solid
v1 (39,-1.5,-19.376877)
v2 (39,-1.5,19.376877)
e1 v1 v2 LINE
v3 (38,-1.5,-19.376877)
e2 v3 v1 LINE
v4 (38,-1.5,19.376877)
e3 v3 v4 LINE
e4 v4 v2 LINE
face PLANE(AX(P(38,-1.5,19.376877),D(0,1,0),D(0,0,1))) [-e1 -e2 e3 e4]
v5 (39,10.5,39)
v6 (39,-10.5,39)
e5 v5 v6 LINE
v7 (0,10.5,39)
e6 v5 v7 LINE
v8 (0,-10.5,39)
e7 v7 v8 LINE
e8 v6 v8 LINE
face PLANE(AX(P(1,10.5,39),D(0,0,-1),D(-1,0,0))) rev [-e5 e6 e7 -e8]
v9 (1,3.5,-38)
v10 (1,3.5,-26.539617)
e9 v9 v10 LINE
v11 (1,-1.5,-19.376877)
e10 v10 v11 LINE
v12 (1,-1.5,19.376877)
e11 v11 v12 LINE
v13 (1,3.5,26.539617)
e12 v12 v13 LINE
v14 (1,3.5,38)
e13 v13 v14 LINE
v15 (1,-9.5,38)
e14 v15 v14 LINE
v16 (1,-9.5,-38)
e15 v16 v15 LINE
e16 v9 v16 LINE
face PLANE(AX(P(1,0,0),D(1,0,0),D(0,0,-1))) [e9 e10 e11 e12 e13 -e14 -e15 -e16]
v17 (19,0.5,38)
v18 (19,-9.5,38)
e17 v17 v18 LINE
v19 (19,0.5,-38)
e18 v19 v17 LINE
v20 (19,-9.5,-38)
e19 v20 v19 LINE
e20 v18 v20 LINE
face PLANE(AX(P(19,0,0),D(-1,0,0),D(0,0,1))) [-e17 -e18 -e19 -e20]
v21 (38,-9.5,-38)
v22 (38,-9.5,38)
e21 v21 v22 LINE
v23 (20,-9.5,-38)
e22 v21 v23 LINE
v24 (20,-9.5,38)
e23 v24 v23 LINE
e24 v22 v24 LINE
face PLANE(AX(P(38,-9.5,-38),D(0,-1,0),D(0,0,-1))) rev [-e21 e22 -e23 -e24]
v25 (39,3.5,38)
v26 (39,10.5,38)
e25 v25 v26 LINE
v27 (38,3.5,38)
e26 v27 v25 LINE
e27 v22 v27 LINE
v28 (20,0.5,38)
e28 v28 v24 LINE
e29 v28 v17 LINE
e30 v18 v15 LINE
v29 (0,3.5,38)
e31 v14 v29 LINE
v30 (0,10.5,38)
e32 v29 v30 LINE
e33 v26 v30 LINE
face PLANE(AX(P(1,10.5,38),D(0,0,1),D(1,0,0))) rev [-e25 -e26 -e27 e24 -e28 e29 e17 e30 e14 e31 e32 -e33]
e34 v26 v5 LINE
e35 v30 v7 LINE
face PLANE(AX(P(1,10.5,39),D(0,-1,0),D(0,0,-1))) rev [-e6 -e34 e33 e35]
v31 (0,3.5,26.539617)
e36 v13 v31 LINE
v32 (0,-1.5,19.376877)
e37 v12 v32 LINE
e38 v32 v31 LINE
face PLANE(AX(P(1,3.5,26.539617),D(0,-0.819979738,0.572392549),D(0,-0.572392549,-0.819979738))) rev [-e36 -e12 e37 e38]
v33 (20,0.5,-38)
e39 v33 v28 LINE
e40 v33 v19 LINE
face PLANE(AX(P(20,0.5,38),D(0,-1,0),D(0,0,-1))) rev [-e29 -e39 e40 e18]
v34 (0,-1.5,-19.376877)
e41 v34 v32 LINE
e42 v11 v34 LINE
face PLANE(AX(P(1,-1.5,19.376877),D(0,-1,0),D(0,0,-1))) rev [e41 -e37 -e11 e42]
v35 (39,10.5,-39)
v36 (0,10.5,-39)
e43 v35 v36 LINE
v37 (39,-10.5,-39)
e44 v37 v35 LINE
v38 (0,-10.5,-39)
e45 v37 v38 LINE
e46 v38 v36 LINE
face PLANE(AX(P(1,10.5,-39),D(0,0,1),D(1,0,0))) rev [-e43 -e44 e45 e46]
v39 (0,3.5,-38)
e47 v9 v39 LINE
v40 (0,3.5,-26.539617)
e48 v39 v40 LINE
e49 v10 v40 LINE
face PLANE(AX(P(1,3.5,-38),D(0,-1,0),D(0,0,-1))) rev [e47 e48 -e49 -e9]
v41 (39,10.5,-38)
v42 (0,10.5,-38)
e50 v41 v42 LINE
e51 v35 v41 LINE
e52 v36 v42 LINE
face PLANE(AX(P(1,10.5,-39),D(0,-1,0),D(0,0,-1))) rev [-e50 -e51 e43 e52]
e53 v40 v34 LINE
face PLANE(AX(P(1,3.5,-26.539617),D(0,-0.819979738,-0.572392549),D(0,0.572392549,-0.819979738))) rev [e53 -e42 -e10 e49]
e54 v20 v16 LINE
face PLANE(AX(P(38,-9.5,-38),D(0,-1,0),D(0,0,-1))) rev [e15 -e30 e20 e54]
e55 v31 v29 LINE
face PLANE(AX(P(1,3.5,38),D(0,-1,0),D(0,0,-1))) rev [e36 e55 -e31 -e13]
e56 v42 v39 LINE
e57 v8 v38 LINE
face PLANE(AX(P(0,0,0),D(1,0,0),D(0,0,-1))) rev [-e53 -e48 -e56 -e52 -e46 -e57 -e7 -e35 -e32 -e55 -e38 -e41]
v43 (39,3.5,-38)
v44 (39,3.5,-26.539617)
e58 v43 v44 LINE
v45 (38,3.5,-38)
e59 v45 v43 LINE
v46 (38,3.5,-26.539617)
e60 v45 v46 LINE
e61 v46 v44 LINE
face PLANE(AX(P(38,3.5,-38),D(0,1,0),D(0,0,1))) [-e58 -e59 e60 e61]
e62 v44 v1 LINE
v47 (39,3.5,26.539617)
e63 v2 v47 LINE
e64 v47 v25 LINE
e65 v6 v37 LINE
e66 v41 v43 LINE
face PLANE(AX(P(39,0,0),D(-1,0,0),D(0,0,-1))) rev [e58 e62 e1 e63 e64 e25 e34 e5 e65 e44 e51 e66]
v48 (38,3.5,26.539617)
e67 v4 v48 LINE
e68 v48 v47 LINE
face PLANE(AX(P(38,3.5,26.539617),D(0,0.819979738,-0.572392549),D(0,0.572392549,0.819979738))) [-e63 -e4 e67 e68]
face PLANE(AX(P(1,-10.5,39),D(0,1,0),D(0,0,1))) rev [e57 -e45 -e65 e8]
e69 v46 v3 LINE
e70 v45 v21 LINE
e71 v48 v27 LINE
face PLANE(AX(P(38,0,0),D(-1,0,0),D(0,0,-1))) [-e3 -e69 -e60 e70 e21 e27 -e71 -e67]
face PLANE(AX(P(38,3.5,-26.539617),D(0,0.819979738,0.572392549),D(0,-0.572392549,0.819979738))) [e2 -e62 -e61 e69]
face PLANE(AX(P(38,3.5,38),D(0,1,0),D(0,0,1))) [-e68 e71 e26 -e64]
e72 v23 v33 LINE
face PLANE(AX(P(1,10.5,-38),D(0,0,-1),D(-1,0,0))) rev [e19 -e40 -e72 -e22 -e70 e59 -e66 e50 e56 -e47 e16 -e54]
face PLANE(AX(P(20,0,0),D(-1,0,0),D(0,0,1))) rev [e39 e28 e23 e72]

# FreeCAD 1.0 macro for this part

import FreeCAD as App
import Part
import Sketcher

doc = App.newDocument("Part")
params = doc.addObject("Spreadsheet::Sheet", "Params")
for row, (alias, value) in enumerate([
    ("sketch1_width", "21 mm"),
    ("sketch1_width2", "7 mm"),
    ("sketch1_height", "1 mm"),
    ("sketch1_height2", "78 mm"),
    ("pad1_length", "1 mm"),
    ("sketch2_width", "20 mm"),
    ("sketch2_width2", "21 mm"),
    ("sketch2_height", "1 mm"),
    ("sketch2_height2", "78 mm"),
    ("pad2_length", "37 mm"),
    ("sketch3_width", "10 mm"),
    ("sketch3_height", "76 mm"),
    ("pad3_length", "1 mm"),
], start=1):
    params.set(f"A{row}", alias)
    params.set(f"B{row}", "=" + value)
    params.setAlias(f"B{row}", alias)

body = doc.addObject("PartDesign::Body", "Body")

# Sketch on YZ plane
sketch1 = body.newObject("Sketcher::SketchObject", "Sketch")
sketch1.AttachmentSupport = (doc.getObject("YZ_Plane"), [""])
sketch1.MapMode = "FlatFace"
sketch1.addGeometry([
    Part.LineSegment(App.Vector(10.5, 38, 0), App.Vector(10.5, 39, 0)),  # 0
    Part.LineSegment(App.Vector(10.5, 39, 0), App.Vector(-10.5, 39, 0)),  # 1
    Part.LineSegment(App.Vector(-10.5, 39, 0), App.Vector(-10.5, -39, 0)),  # 2
    Part.LineSegment(App.Vector(-10.5, -39, 0), App.Vector(10.5, -39, 0)),  # 3
    Part.LineSegment(App.Vector(10.5, -39, 0), App.Vector(10.5, -38, 0)),  # 4
    Part.LineSegment(App.Vector(10.5, -38, 0), App.Vector(3.5, -38, 0)),  # 5
    Part.LineSegment(App.Vector(3.5, -38, 0), App.Vector(3.5, -26.5, 0)),  # 6
    Part.LineSegment(App.Vector(3.5, -26.5, 0), App.Vector(-1.5, -19.4, 0)),  # 7
    Part.LineSegment(App.Vector(-1.5, -19.4, 0), App.Vector(-1.5, 19.4, 0)),  # 8
    Part.LineSegment(App.Vector(-1.5, 19.4, 0), App.Vector(3.5, 26.5, 0)),  # 9
    Part.LineSegment(App.Vector(3.5, 26.5, 0), App.Vector(3.5, 38, 0)),  # 10
    Part.LineSegment(App.Vector(3.5, 38, 0), App.Vector(10.5, 38, 0)),  # 11
], False)
sketch1.addConstraint([
    Sketcher.Constraint("Coincident", 0, 2, 1, 1),
    Sketcher.Constraint("Coincident", 1, 2, 2, 1),
    Sketcher.Constraint("Coincident", 2, 2, 3, 1),
    Sketcher.Constraint("Coincident", 3, 2, 4, 1),
    Sketcher.Constraint("Coincident", 4, 2, 5, 1),
    Sketcher.Constraint("Coincident", 5, 2, 6, 1),
    Sketcher.Constraint("Coincident", 6, 2, 7, 1),
    Sketcher.Constraint("Coincident", 7, 2, 8, 1),
    Sketcher.Constraint("Coincident", 8, 2, 9, 1),
    Sketcher.Constraint("Coincident", 9, 2, 10, 1),
    Sketcher.Constraint("Coincident", 10, 2, 11, 1),
    Sketcher.Constraint("Coincident", 11, 2, 0, 1),
    Sketcher.Constraint("Vertical", 0),
    Sketcher.Constraint("Horizontal", 1),
    Sketcher.Constraint("Vertical", 2),
    Sketcher.Constraint("Horizontal", 3),
    Sketcher.Constraint("Vertical", 4),
    Sketcher.Constraint("Horizontal", 5),
    Sketcher.Constraint("Vertical", 6),
    Sketcher.Constraint("Vertical", 8),
    Sketcher.Constraint("Vertical", 10),
    Sketcher.Constraint("Horizontal", 11),
    Sketcher.Constraint("Symmetric", 0, 2, 2, 2, -1, 1),
    Sketcher.Constraint("Symmetric", 6, 2, 9, 2, -1),
    Sketcher.Constraint("Symmetric", 4, 2, 11, 2, -1),
    Sketcher.Constraint("Equal", 7, 9),
    Sketcher.Constraint("DistanceX", 1, 2, 1, 1, 21.0),
    Sketcher.Constraint("DistanceX", 5, 2, 5, 1, 7.0),
    Sketcher.Constraint("DistanceY", 0, 1, 0, 2, 1.0),
    Sketcher.Constraint("DistanceY", 2, 2, 2, 1, 78.0),
    Sketcher.Constraint("DistanceX", 7, 2, 6, 2, 5.0),
    Sketcher.Constraint("DistanceY", 6, 1, 6, 2, 11.460383),
    Sketcher.Constraint("DistanceY", 8, 1, 8, 2, 38.753755),
])
sketch1.setExpression("Constraints[26]", "Params.sketch1_width")
sketch1.setExpression("Constraints[27]", "Params.sketch1_width2")
sketch1.setExpression("Constraints[28]", "Params.sketch1_height")
sketch1.setExpression("Constraints[29]", "Params.sketch1_height2")
pad1 = body.newObject("PartDesign::Pad", "Pad")
pad1.Profile = sketch1
pad1.setExpression("Length", "Params.pad1_length")

# Sketch on YZ plane
sketch2 = body.newObject("Sketcher::SketchObject", "Sketch001")
sketch2.AttachmentSupport = (doc.getObject("YZ_Plane"), [""])
sketch2.MapMode = "FlatFace"
sketch2.AttachmentOffset = App.Placement(App.Vector(0, 0, 1), App.Rotation())
sketch2.addGeometry([
    Part.LineSegment(App.Vector(-9.5, 38, 0), App.Vector(10.5, 38, 0)),  # 0
    Part.LineSegment(App.Vector(10.5, 38, 0), App.Vector(10.5, 39, 0)),  # 1
    Part.LineSegment(App.Vector(10.5, 39, 0), App.Vector(-10.5, 39, 0)),  # 2
    Part.LineSegment(App.Vector(-10.5, 39, 0), App.Vector(-10.5, -39, 0)),  # 3
    Part.LineSegment(App.Vector(-10.5, -39, 0), App.Vector(10.5, -39, 0)),  # 4
    Part.LineSegment(App.Vector(10.5, -39, 0), App.Vector(10.5, -38, 0)),  # 5
    Part.LineSegment(App.Vector(10.5, -38, 0), App.Vector(-9.5, -38, 0)),  # 6
    Part.LineSegment(App.Vector(-9.5, -38, 0), App.Vector(-9.5, 38, 0)),  # 7
], False)
sketch2.addConstraint([
    Sketcher.Constraint("Coincident", 0, 2, 1, 1),
    Sketcher.Constraint("Coincident", 1, 2, 2, 1),
    Sketcher.Constraint("Coincident", 2, 2, 3, 1),
    Sketcher.Constraint("Coincident", 3, 2, 4, 1),
    Sketcher.Constraint("Coincident", 4, 2, 5, 1),
    Sketcher.Constraint("Coincident", 5, 2, 6, 1),
    Sketcher.Constraint("Coincident", 6, 2, 7, 1),
    Sketcher.Constraint("Coincident", 7, 2, 0, 1),
    Sketcher.Constraint("Horizontal", 0),
    Sketcher.Constraint("Vertical", 1),
    Sketcher.Constraint("Horizontal", 2),
    Sketcher.Constraint("Vertical", 3),
    Sketcher.Constraint("Horizontal", 4),
    Sketcher.Constraint("Vertical", 5),
    Sketcher.Constraint("Horizontal", 6),
    Sketcher.Constraint("Vertical", 7),
    Sketcher.Constraint("Symmetric", 1, 2, 3, 2, -1, 1),
    Sketcher.Constraint("Symmetric", 0, 2, 5, 2, -1),
    Sketcher.Constraint("DistanceX", 0, 1, 0, 2, 20.0),
    Sketcher.Constraint("DistanceX", 2, 2, 2, 1, 21.0),
    Sketcher.Constraint("DistanceY", 1, 1, 1, 2, 1.0),
    Sketcher.Constraint("DistanceY", 3, 2, 3, 1, 78.0),
])
sketch2.setExpression("Constraints[18]", "Params.sketch2_width")
sketch2.setExpression("Constraints[19]", "Params.sketch2_width2")
sketch2.setExpression("Constraints[20]", "Params.sketch2_height")
sketch2.setExpression("Constraints[21]", "Params.sketch2_height2")
pad2 = body.newObject("PartDesign::Pad", "Pad001")
pad2.Profile = sketch2
pad2.setExpression("Length", "Params.pad2_length")
doc.recompute()

datumplane = body.newObject("PartDesign::Plane", "DatumPlane")
datumplane.AttachmentSupport = (doc.getObject("YZ_Plane"), [""])
datumplane.MapMode = "FlatFace"
datumplane.AttachmentOffset = App.Placement(App.Vector(0, 0, 19.5), App.Rotation())
mirrored = body.newObject("PartDesign::Mirrored", "Mirrored")
mirrored.Originals = [pad1]
mirrored.MirrorPlane = (datumplane, [""])
body.Tip = mirrored

# Sketch on YZ plane
sketch3 = body.newObject("Sketcher::SketchObject", "Sketch002")
sketch3.AttachmentSupport = (doc.getObject("YZ_Plane"), [""])
sketch3.MapMode = "FlatFace"
sketch3.AttachmentOffset = App.Placement(App.Vector(0, 0, 19.5), App.Rotation())
sketch3.addGeometry([
    Part.LineSegment(App.Vector(0, 38, 0), App.Vector(-10, 38, 0)),
    Part.LineSegment(App.Vector(-10, 38, 0), App.Vector(-10, -38, 0)),
    Part.LineSegment(App.Vector(-10, -38, 0), App.Vector(0, -38, 0)),
    Part.LineSegment(App.Vector(0, -38, 0), App.Vector(0, 38, 0)),
], False)
sketch3.addConstraint([
    Sketcher.Constraint("Coincident", 0, 2, 1, 1),
    Sketcher.Constraint("Coincident", 1, 2, 2, 1),
    Sketcher.Constraint("Coincident", 2, 2, 3, 1),
    Sketcher.Constraint("Coincident", 3, 2, 0, 1),
    Sketcher.Constraint("Horizontal", 0),
    Sketcher.Constraint("Vertical", 1),
    Sketcher.Constraint("Horizontal", 2),
    Sketcher.Constraint("Vertical", 3),
    Sketcher.Constraint("DistanceX", 0, 2, 0, 1, 10.0),
    Sketcher.Constraint("DistanceY", 1, 2, 1, 1, 76.0),
    Sketcher.Constraint("DistanceY", -1, 1, 0, 2, 38.0),
    Sketcher.Constraint("DistanceX", 0, 2, -1, 1, 9.5),
])
sketch3.setExpression("Constraints[8]", "Params.sketch3_width")
sketch3.setExpression("Constraints[9]", "Params.sketch3_height")
pad3 = body.newObject("PartDesign::Pad", "Pad002")
pad3.Profile = sketch3
pad3.setExpression("Length", "Params.pad3_length")
pad3.Midplane = True

doc.recompute()
